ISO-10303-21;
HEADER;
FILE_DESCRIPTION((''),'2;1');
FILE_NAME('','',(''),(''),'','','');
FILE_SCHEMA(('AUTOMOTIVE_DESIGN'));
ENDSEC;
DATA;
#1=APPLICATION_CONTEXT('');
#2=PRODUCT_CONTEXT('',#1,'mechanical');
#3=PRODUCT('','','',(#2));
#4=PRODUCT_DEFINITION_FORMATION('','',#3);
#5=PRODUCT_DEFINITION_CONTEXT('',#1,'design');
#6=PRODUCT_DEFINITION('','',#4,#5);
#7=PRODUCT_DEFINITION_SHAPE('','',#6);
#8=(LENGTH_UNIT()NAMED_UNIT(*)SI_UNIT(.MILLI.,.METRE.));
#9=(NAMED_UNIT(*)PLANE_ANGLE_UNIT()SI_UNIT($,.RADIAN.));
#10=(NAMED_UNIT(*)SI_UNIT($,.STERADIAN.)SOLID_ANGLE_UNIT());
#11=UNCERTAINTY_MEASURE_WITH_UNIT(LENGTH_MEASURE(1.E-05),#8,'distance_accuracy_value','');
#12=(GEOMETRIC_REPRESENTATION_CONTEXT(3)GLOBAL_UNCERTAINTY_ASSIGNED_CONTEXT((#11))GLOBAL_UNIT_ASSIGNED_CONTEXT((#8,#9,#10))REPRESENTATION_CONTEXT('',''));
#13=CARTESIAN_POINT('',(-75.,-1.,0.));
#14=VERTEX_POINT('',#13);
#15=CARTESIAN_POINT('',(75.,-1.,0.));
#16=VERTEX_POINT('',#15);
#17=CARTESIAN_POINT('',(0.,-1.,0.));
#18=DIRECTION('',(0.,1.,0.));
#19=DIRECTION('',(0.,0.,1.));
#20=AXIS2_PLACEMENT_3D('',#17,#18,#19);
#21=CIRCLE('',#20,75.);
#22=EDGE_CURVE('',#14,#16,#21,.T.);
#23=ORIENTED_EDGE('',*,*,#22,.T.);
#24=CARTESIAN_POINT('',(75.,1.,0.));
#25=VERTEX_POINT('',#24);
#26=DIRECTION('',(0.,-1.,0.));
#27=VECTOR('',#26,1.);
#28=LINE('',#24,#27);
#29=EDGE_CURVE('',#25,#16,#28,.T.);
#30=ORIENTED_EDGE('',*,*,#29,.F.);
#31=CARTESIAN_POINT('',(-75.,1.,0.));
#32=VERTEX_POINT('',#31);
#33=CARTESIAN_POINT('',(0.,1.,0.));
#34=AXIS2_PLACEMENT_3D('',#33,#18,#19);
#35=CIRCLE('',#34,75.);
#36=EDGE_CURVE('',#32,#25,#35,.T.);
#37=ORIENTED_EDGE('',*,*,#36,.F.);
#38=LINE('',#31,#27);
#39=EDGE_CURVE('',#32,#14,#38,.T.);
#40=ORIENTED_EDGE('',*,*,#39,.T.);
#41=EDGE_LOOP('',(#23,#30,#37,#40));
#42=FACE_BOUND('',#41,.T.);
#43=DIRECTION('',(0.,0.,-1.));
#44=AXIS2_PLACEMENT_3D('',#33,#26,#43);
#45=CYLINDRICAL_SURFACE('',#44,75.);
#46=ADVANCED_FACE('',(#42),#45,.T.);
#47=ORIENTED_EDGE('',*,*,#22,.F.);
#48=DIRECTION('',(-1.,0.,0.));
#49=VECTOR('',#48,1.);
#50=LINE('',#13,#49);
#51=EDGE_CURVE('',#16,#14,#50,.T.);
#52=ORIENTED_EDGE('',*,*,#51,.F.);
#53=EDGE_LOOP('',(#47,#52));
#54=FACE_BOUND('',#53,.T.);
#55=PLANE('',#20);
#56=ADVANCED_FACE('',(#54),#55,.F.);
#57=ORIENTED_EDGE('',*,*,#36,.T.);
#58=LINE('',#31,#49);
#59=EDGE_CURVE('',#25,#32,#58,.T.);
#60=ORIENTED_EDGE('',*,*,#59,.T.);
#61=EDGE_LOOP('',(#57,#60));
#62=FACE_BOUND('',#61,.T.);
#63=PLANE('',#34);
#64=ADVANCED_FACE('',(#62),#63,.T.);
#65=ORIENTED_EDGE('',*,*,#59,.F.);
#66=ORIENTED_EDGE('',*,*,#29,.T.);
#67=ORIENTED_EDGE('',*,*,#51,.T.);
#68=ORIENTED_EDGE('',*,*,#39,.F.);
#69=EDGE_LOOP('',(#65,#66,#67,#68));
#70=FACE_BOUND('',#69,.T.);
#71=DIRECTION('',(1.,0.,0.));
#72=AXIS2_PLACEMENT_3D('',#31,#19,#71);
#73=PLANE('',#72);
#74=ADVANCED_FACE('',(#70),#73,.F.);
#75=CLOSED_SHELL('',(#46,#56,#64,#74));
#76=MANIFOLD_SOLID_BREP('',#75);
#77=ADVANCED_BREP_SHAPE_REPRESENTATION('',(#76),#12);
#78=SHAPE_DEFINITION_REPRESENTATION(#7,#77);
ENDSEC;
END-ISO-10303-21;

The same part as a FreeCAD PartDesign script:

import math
import FreeCAD as App
import Part
import Sketcher
from FreeCAD import Vector
Q = App.Units.Quantity

doc = App.newDocument("Part")
body = doc.addObject("PartDesign::Body", "Body")

sketch1 = body.newObject("Sketcher::SketchObject", "Sketch")
sketch1.AttachmentSupport = (doc.getObject("XZ_Plane"), [""])
sketch1.MapMode = "FlatFace"
sketch1.addGeometry([
    Part.LineSegment(Vector(75, 0, 0), Vector(-75, 0, 0)),
    Part.ArcOfCircle(Part.Circle(Vector(0, 0, 0), Vector(0, 0, 1), 75), math.radians(0), math.radians(180)),
], False)
sketch1.addConstraint([
    Sketcher.Constraint("Coincident", 0, 1, 1, 1),
    Sketcher.Constraint("Coincident", 1, 2, 0, 2),
    Sketcher.Constraint("Horizontal", 0),
    Sketcher.Constraint("Coincident", 1, 3, -1, 1),
    Sketcher.Constraint("PointOnObject", 0, 1, -1),
    Sketcher.Constraint("Radius", 1, Q("75 mm")),
])
pad1 = body.newObject("PartDesign::Pad", "Pad")
pad1.Profile = sketch1
pad1.Length = 2
pad1.Midplane = True

doc.recompute()
